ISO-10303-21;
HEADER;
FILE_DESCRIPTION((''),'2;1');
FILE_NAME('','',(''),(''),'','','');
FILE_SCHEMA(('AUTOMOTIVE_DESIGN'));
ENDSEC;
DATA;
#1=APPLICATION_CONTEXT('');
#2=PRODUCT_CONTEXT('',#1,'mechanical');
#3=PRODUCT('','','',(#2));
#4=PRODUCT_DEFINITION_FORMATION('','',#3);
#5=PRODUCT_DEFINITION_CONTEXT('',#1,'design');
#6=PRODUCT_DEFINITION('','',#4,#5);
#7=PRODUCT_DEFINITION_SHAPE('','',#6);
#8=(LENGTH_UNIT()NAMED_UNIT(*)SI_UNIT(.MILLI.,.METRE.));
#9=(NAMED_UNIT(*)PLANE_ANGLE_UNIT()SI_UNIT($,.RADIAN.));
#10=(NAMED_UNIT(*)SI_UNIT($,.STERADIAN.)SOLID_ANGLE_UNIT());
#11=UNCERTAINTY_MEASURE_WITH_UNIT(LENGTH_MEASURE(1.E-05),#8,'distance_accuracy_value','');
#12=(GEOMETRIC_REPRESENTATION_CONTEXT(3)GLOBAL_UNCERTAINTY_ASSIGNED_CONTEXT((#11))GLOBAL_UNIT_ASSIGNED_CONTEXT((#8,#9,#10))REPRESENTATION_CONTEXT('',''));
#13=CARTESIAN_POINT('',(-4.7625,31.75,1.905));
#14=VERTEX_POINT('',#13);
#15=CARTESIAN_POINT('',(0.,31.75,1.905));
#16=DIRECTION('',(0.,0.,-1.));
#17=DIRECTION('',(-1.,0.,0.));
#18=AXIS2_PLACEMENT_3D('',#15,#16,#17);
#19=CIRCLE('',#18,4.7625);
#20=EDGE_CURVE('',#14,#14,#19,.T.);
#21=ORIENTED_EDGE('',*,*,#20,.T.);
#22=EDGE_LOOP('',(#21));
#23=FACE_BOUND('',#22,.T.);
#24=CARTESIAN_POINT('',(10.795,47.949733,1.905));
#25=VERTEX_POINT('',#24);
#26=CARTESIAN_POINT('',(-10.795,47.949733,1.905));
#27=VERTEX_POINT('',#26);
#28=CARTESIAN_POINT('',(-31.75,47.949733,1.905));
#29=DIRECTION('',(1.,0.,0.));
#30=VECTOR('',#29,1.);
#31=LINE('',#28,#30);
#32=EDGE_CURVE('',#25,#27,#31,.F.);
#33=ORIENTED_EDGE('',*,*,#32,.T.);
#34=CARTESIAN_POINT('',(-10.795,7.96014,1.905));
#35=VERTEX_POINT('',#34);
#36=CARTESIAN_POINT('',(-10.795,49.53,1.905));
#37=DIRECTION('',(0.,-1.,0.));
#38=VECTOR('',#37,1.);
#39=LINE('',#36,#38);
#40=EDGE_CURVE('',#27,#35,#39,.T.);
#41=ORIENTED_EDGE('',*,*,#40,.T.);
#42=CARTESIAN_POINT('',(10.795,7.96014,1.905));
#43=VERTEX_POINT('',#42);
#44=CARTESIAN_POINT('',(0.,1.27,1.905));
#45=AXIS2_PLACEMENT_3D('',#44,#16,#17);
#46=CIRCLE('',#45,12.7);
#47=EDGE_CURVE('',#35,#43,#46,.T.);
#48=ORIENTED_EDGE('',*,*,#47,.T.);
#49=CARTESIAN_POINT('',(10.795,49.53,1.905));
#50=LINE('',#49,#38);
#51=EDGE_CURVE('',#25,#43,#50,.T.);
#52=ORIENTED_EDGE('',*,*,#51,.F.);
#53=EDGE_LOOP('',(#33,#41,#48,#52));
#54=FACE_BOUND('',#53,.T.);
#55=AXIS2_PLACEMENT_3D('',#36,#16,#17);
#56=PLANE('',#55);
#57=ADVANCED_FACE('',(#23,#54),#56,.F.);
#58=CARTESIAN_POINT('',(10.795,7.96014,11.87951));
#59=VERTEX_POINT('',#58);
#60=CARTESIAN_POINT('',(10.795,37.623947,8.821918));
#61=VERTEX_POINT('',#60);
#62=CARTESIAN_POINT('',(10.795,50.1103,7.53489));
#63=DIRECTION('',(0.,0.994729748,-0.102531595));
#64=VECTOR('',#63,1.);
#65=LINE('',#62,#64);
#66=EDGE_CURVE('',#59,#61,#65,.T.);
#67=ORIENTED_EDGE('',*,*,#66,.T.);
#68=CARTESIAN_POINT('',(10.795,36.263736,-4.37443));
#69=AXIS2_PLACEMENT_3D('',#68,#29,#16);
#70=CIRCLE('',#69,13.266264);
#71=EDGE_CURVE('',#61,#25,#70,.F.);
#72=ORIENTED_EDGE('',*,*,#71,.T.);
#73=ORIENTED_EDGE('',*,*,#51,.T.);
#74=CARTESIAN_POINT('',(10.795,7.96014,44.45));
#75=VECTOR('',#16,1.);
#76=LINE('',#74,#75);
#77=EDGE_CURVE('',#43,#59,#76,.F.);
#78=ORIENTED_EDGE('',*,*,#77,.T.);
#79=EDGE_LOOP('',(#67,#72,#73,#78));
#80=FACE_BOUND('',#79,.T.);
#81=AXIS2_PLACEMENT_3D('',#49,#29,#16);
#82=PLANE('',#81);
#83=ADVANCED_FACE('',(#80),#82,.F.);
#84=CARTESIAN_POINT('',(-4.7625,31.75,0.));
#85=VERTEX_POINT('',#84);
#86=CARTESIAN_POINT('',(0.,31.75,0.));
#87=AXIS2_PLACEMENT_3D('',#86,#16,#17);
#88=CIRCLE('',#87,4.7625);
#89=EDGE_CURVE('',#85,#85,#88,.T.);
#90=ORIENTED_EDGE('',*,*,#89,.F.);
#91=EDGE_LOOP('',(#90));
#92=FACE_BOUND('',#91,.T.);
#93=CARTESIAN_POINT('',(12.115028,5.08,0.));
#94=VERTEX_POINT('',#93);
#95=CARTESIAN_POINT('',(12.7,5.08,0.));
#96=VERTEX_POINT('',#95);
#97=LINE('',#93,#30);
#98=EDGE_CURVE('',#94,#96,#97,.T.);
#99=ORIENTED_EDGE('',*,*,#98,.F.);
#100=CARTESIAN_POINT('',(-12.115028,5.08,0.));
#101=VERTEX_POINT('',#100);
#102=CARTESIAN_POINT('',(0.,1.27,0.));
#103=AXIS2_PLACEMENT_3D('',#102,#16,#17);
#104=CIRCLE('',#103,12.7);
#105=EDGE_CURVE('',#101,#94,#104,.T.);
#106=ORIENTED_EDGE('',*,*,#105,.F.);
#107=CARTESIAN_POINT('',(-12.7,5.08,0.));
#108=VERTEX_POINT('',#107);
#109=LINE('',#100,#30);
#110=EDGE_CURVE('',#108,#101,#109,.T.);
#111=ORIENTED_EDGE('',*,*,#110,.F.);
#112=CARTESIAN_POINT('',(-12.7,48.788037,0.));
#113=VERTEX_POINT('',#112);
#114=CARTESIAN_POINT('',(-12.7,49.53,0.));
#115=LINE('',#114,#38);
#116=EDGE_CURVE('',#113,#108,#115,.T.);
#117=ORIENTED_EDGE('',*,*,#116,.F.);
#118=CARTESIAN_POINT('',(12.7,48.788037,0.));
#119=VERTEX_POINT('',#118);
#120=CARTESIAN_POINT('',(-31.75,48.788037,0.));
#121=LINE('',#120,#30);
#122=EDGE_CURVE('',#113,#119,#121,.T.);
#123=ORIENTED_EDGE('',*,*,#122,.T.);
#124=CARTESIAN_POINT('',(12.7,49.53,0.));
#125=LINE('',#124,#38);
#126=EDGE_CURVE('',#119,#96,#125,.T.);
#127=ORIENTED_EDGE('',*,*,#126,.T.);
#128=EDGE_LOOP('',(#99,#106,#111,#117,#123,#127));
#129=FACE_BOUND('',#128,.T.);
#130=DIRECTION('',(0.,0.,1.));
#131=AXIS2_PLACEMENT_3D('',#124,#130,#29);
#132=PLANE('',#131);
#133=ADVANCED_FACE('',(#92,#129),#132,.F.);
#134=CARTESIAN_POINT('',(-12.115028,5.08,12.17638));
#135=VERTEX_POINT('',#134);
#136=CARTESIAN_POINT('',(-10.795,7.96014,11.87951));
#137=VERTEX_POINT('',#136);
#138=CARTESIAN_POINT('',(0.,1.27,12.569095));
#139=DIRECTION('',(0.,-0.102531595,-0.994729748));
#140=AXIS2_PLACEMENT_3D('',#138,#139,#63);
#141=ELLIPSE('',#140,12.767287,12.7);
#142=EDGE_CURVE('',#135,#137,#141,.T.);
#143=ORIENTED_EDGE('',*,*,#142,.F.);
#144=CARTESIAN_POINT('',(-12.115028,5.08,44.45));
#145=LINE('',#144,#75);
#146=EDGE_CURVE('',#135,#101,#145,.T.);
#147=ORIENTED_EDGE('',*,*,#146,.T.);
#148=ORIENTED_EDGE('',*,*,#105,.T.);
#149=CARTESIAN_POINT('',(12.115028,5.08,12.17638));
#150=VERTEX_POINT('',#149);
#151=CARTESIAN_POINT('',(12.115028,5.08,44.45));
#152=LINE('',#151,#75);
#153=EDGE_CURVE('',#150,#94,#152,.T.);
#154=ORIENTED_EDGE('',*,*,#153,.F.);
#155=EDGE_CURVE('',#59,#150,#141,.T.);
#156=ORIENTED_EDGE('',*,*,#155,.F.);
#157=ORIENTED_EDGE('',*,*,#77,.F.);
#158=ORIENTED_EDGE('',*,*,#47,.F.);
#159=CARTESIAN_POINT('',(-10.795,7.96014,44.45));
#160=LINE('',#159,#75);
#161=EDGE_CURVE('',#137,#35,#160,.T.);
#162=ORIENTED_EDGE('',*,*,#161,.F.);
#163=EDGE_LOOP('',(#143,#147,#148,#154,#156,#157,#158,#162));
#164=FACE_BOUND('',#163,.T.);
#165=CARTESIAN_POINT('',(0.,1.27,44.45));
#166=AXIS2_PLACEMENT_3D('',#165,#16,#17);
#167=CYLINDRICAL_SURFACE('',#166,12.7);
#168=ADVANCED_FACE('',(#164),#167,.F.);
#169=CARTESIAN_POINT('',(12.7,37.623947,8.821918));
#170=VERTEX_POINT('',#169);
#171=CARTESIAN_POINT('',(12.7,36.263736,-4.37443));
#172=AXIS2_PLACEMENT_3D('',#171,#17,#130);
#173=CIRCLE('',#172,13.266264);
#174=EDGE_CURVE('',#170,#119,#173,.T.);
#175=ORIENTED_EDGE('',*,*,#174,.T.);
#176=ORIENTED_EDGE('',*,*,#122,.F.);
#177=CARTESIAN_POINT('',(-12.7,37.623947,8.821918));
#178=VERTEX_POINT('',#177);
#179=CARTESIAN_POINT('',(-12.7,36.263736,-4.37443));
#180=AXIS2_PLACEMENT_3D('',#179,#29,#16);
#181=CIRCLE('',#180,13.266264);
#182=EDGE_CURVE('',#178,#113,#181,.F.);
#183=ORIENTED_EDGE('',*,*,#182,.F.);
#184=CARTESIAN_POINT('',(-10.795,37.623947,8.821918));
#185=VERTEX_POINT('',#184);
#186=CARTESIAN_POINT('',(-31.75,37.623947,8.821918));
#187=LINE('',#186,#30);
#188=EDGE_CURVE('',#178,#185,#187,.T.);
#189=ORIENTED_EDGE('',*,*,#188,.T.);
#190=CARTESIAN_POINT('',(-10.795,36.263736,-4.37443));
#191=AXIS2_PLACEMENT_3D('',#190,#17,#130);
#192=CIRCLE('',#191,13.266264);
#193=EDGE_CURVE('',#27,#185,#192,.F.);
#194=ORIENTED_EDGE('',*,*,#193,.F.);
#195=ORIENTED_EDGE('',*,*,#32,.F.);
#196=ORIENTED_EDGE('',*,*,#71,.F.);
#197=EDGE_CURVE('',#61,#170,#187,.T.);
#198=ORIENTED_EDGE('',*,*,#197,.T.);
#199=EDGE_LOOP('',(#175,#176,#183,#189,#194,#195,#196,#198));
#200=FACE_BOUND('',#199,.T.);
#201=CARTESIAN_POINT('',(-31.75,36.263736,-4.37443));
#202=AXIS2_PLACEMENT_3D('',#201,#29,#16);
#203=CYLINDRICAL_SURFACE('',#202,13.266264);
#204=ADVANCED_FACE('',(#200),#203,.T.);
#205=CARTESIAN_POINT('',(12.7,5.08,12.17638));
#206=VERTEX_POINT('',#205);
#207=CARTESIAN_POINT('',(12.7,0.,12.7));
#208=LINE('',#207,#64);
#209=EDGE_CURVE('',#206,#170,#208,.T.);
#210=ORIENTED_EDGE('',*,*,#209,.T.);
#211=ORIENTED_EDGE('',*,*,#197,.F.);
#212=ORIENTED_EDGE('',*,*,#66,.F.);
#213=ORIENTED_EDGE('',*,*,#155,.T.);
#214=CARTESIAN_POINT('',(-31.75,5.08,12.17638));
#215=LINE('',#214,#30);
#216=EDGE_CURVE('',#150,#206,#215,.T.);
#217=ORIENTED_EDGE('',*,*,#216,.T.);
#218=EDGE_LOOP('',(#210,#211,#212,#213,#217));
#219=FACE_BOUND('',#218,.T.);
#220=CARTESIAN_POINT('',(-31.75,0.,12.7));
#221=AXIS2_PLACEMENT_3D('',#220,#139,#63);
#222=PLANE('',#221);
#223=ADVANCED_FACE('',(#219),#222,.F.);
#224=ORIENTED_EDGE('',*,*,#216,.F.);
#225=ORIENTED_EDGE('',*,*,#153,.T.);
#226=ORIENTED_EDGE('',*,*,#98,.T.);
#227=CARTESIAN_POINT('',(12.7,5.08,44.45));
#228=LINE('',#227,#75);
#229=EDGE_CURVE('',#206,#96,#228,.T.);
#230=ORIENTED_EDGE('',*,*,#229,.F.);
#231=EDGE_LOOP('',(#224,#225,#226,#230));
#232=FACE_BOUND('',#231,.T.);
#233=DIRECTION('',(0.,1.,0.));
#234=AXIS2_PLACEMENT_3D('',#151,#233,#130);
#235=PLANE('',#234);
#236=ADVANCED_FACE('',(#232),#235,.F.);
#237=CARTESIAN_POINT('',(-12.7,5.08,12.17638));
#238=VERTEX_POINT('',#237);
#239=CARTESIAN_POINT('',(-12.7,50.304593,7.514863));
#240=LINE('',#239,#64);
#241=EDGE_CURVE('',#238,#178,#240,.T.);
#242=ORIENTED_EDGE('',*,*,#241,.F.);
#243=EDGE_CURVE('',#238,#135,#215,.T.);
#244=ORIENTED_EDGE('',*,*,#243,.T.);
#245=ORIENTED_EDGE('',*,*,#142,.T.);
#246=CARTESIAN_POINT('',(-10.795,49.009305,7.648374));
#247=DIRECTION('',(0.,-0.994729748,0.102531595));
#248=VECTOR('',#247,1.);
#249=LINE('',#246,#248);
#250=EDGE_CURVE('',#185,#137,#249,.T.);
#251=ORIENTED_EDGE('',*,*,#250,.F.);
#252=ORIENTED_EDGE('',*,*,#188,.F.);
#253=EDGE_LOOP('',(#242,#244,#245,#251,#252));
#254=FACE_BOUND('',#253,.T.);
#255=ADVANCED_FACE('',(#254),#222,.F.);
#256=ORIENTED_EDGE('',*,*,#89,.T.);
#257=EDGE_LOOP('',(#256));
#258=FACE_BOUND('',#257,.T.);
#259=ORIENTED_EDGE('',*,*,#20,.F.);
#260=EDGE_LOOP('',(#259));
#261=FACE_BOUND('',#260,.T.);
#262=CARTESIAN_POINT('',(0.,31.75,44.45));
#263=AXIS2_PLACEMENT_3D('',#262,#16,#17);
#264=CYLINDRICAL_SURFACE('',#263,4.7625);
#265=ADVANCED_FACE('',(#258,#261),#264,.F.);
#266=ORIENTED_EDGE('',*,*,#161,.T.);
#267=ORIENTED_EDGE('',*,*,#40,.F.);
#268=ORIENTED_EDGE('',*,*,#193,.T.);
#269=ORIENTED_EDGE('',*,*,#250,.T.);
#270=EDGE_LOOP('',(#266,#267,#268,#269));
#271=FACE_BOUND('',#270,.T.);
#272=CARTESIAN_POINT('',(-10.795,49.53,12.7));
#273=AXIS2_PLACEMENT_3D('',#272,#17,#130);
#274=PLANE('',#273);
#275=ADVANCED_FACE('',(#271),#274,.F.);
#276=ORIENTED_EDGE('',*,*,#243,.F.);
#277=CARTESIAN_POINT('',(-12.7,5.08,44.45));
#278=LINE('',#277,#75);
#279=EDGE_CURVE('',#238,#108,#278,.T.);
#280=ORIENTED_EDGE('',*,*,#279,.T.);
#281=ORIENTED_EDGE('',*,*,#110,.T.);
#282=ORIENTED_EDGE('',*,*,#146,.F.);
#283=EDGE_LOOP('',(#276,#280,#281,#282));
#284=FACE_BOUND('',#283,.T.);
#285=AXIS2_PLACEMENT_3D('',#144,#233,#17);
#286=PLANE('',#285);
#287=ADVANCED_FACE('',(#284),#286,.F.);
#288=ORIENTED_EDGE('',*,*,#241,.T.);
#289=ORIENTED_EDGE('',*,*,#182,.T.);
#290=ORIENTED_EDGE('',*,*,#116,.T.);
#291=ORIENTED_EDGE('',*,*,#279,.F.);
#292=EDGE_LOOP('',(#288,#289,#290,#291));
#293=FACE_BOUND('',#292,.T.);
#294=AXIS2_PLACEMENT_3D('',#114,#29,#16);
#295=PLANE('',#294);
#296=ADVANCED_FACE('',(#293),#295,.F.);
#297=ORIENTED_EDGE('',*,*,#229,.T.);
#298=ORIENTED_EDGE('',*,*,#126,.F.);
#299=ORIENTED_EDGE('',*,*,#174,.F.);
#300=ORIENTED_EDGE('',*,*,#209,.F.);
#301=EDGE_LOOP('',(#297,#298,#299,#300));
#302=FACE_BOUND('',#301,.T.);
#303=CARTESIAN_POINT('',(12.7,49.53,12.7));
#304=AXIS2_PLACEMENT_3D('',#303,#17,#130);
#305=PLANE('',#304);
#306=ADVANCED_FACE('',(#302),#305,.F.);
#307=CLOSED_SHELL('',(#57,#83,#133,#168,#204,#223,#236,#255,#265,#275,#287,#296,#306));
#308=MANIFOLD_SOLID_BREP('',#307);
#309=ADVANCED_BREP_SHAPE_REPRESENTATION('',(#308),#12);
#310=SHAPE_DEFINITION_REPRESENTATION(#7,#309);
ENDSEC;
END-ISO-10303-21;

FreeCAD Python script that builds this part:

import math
import FreeCAD as App
import Part
import Sketcher
Q = App.Units.Quantity

doc = App.newDocument("Part")
body = doc.addObject("PartDesign::Body", "Body")

# Sketch on XZ plane
sketch1 = doc.addObject("Sketcher::SketchObject", "Sketch")
body.addObject(sketch1)
sketch1.AttachmentSupport = (doc.XZ_Plane, [""])
sketch1.MapMode = "FlatFace"
sketch1.addGeometry(Part.LineSegment(App.Vector(-12.7, 12.7, 0), App.Vector(-10.795, 12.7, 0)), False)
sketch1.addGeometry(Part.LineSegment(App.Vector(-10.795, 12.7, 0), App.Vector(-10.795, 1.905, 0)), False)
sketch1.addGeometry(Part.LineSegment(App.Vector(-10.795, 1.905, 0), App.Vector(10.795, 1.905, 0)), False)
sketch1.addGeometry(Part.LineSegment(App.Vector(10.795, 1.905, 0), App.Vector(10.795, 12.7, 0)), False)
sketch1.addGeometry(Part.LineSegment(App.Vector(10.795, 12.7, 0), App.Vector(12.7, 12.7, 0)), False)
sketch1.addGeometry(Part.LineSegment(App.Vector(12.7, 12.7, 0), App.Vector(12.7, 0, 0)), False)
sketch1.addGeometry(Part.LineSegment(App.Vector(12.7, 0, 0), App.Vector(-12.7, 0, 0)), False)
sketch1.addGeometry(Part.LineSegment(App.Vector(-12.7, 0, 0), App.Vector(-12.7, 12.7, 0)), False)
sketch1.addConstraint(Sketcher.Constraint("Coincident", 0, 2, 1, 1))
sketch1.addConstraint(Sketcher.Constraint("Coincident", 1, 2, 2, 1))
sketch1.addConstraint(Sketcher.Constraint("Coincident", 2, 2, 3, 1))
sketch1.addConstraint(Sketcher.Constraint("Coincident", 3, 2, 4, 1))
sketch1.addConstraint(Sketcher.Constraint("Coincident", 4, 2, 5, 1))
sketch1.addConstraint(Sketcher.Constraint("Coincident", 5, 2, 6, 1))
sketch1.addConstraint(Sketcher.Constraint("Coincident", 6, 2, 7, 1))
sketch1.addConstraint(Sketcher.Constraint("Coincident", 7, 2, 0, 1))
sketch1.addConstraint(Sketcher.Constraint("Horizontal", 0))
sketch1.addConstraint(Sketcher.Constraint("Vertical", 1))
sketch1.addConstraint(Sketcher.Constraint("Horizontal", 2))
sketch1.addConstraint(Sketcher.Constraint("Vertical", 3))
sketch1.addConstraint(Sketcher.Constraint("Horizontal", 4))
sketch1.addConstraint(Sketcher.Constraint("Vertical", 5))
sketch1.addConstraint(Sketcher.Constraint("Horizontal", 6))
sketch1.addConstraint(Sketcher.Constraint("Vertical", 7))
sketch1.addConstraint(Sketcher.Constraint("Symmetric", 5, 2, 6, 2, -1, 1))
sketch1.addConstraint(Sketcher.Constraint("Symmetric", 0, 2, 3, 2, -2))
sketch1.addConstraint(Sketcher.Constraint("DistanceX", 6, 2, 6, 1, Q("1 in")))
sketch1.addConstraint(Sketcher.Constraint("DistanceY", 5, 2, 5, 1, Q("0.5 in")))
sketch1.addConstraint(Sketcher.Constraint("DistanceX", 2, 1, 2, 2, Q("0.85 in")))
sketch1.addConstraint(Sketcher.Constraint("DistanceY", 1, 2, 1, 1, Q("0.425 in")))
pad1 = doc.addObject("PartDesign::Pad", "Pad")
body.addObject(pad1)
pad1.Profile = sketch1
pad1.Length = Q("1.95 in")
pad1.Reversed = True

# Sketch on YZ plane
sketch2 = doc.addObject("Sketcher::SketchObject", "Sketch001")
body.addObject(sketch2)
sketch2.AttachmentSupport = (doc.YZ_Plane, [""])
sketch2.MapMode = "FlatFace"
sketch2.AttachmentOffset = App.Placement(App.Vector(0, 0, 0.5 * 25.4), App.Rotation())
sketch2.addGeometry(Part.LineSegment(App.Vector(0, 12.7, 0), App.Vector(37.623947, 8.821918, 0)), False)
sketch2.addGeometry(Part.ArcOfCircle(Part.Circle(App.Vector(36.263736, -4.37443, 0), App.Vector(0, 0, 1), 13.266264), math.radians(0), math.radians(84.11503)), False)
sketch2.addGeometry(Part.LineSegment(App.Vector(49.53, -4.37443, 0), App.Vector(49.53, 12.7, 0)), False)
sketch2.addGeometry(Part.LineSegment(App.Vector(49.53, 12.7, 0), App.Vector(0, 12.7, 0)), False)
sketch2.addConstraint(Sketcher.Constraint("Tangent", 0, 2, 1, 2))
sketch2.addConstraint(Sketcher.Constraint("Tangent", 1, 1, 2, 1))
sketch2.addConstraint(Sketcher.Constraint("Coincident", 2, 2, 3, 1))
sketch2.addConstraint(Sketcher.Constraint("Coincident", 3, 2, 0, 1))
sketch2.addConstraint(Sketcher.Constraint("Vertical", 2))
sketch2.addConstraint(Sketcher.Constraint("Horizontal", 3))
sketch2.addConstraint(Sketcher.Constraint("PointOnObject", 3, 2, -2))
sketch2.addConstraint(Sketcher.Constraint("DistanceX", 3, 2, 3, 1, Q("1.95 in")))
sketch2.addConstraint(Sketcher.Constraint("DistanceY", -1, 1, 2, 2, Q("0.5 in")))
sketch2.addConstraint(Sketcher.Constraint("Radius", 1, 13.266264))
sketch2.addConstraint(Sketcher.Constraint("DistanceY", 2, 1, 2, 2, 17.07443))
pocket1 = doc.addObject("PartDesign::Pocket", "Pocket")
body.addObject(pocket1)
pocket1.Profile = sketch2
pocket1.Length = Q("1.75 in")

# Sketch on XY plane
sketch3 = doc.addObject("Sketcher::SketchObject", "Sketch002")
body.addObject(sketch3)
sketch3.AttachmentSupport = (doc.XY_Plane, [""])
sketch3.MapMode = "FlatFace"
sketch3.addGeometry(Part.Circle(App.Vector(0, 31.75, 0), App.Vector(0, 0, 1), 4.7625), False)
sketch3.addGeometry(Part.LineSegment(App.Vector(12.115028, 5.08, 0), App.Vector(12.7, 5.08, 0)), False)
sketch3.addGeometry(Part.LineSegment(App.Vector(12.7, 5.08, 0), App.Vector(12.7, 0, 0)), False)
sketch3.addGeometry(Part.LineSegment(App.Vector(12.7, 0, 0), App.Vector(-12.7, 0, 0)), False)
sketch3.addGeometry(Part.LineSegment(App.Vector(-12.7, 0, 0), App.Vector(-12.7, 5.08, 0)), False)
sketch3.addGeometry(Part.LineSegment(App.Vector(-12.7, 5.08, 0), App.Vector(-12.115028, 5.08, 0)), False)
sketch3.addGeometry(Part.ArcOfCircle(Part.Circle(App.Vector(0, 1.27, 0), App.Vector(0, 0, 1), 12.7), math.radians(17.457603), math.radians(162.542397)), False)
sketch3.addConstraint(Sketcher.Constraint("Coincident", 1, 2, 2, 1))
sketch3.addConstraint(Sketcher.Constraint("Coincident", 2, 2, 3, 1))
sketch3.addConstraint(Sketcher.Constraint("Coincident", 3, 2, 4, 1))
sketch3.addConstraint(Sketcher.Constraint("Coincident", 4, 2, 5, 1))
sketch3.addConstraint(Sketcher.Constraint("Coincident", 5, 2, 6, 2))
sketch3.addConstraint(Sketcher.Constraint("Coincident", 6, 1, 1, 1))
sketch3.addConstraint(Sketcher.Constraint("Horizontal", 1))
sketch3.addConstraint(Sketcher.Constraint("Vertical", 2))
sketch3.addConstraint(Sketcher.Constraint("Horizontal", 3))
sketch3.addConstraint(Sketcher.Constraint("Vertical", 4))
sketch3.addConstraint(Sketcher.Constraint("Horizontal", 5))
sketch3.addConstraint(Sketcher.Constraint("Symmetric", 2, 2, 3, 2, -1, 1))
sketch3.addConstraint(Sketcher.Constraint("Symmetric", 5, 2, 6, 1, -2))
sketch3.addConstraint(Sketcher.Constraint("PointOnObject", 0, 3, -2))
sketch3.addConstraint(Sketcher.Constraint("Radius", 6, Q("0.5 in")))
sketch3.addConstraint(Sketcher.Constraint("DistanceX", 3, 2, 3, 1, Q("1 in")))
sketch3.addConstraint(Sketcher.Constraint("Diameter", 0, Q("0.375 in")))
sketch3.addConstraint(Sketcher.Constraint("DistanceY", 2, 2, 2, 1, Q("0.2 in")))
sketch3.addConstraint(Sketcher.Constraint("DistanceY", 6, 3, 0, 3, Q("1.2 in")))
sketch3.addConstraint(Sketcher.Constraint("DistanceY", -1, 1, 0, 3, Q("1.25 in")))
pocket2 = doc.addObject("PartDesign::Pocket", "Pocket001")
body.addObject(pocket2)
pocket2.Profile = sketch3
pocket2.Length = Q("1.75 in")
pocket2.Reversed = True

doc.recompute()
